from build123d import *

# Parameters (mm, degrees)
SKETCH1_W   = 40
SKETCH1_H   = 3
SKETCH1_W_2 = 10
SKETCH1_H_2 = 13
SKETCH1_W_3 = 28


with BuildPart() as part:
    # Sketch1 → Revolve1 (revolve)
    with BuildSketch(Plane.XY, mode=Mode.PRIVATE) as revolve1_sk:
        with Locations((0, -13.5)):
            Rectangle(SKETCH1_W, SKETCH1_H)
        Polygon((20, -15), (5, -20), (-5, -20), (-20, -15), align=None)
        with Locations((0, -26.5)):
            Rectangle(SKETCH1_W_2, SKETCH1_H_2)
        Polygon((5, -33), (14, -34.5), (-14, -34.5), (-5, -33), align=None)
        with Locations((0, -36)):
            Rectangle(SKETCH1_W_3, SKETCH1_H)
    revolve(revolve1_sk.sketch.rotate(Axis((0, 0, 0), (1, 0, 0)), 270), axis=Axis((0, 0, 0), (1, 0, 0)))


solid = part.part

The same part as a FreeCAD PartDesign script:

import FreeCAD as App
import Part
import Sketcher
Q = App.Units.Quantity

doc = App.newDocument("Part")
body = doc.addObject("PartDesign::Body", "Body")

sketch1 = doc.addObject("Sketcher::SketchObject", "Sketch")
body.addObject(sketch1)
sketch1.AttachmentSupport = (doc.XY_Plane, [""])
sketch1.MapMode = "FlatFace"
sketch1.addGeometry(Part.LineSegment(App.Vector(-20, -12, 0), App.Vector(-20, -15, 0)), False)
sketch1.addGeometry(Part.LineSegment(App.Vector(-20, -15, 0), App.Vector(-5, -20, 0)), False)
sketch1.addGeometry(Part.LineSegment(App.Vector(-5, -20, 0), App.Vector(-5, -33, 0)), False)
sketch1.addGeometry(Part.LineSegment(App.Vector(-5, -33, 0), App.Vector(-14, -34.5, 0)), False)
sketch1.addGeometry(Part.LineSegment(App.Vector(-14, -34.5, 0), App.Vector(-14, -37.5, 0)), False)
sketch1.addGeometry(Part.LineSegment(App.Vector(-14, -37.5, 0), App.Vector(14, -37.5, 0)), False)
sketch1.addGeometry(Part.LineSegment(App.Vector(14, -37.5, 0), App.Vector(14, -34.5, 0)), False)
sketch1.addGeometry(Part.LineSegment(App.Vector(14, -34.5, 0), App.Vector(5, -33, 0)), False)
sketch1.addGeometry(Part.LineSegment(App.Vector(5, -33, 0), App.Vector(5, -20, 0)), False)
sketch1.addGeometry(Part.LineSegment(App.Vector(5, -20, 0), App.Vector(20, -15, 0)), False)
sketch1.addGeometry(Part.LineSegment(App.Vector(20, -15, 0), App.Vector(20, -12, 0)), False)
sketch1.addGeometry(Part.LineSegment(App.Vector(20, -12, 0), App.Vector(-20, -12, 0)), False)
sketch1.addConstraint(Sketcher.Constraint("Coincident", 0, 2, 1, 1))
sketch1.addConstraint(Sketcher.Constraint("Coincident", 1, 2, 2, 1))
sketch1.addConstraint(Sketcher.Constraint("Coincident", 2, 2, 3, 1))
sketch1.addConstraint(Sketcher.Constraint("Coincident", 3, 2, 4, 1))
sketch1.addConstraint(Sketcher.Constraint("Coincident", 4, 2, 5, 1))
sketch1.addConstraint(Sketcher.Constraint("Coincident", 5, 2, 6, 1))
sketch1.addConstraint(Sketcher.Constraint("Coincident", 6, 2, 7, 1))
sketch1.addConstraint(Sketcher.Constraint("Coincident", 7, 2, 8, 1))
sketch1.addConstraint(Sketcher.Constraint("Coincident", 8, 2, 9, 1))
sketch1.addConstraint(Sketcher.Constraint("Coincident", 9, 2, 10, 1))
sketch1.addConstraint(Sketcher.Constraint("Coincident", 10, 2, 11, 1))
sketch1.addConstraint(Sketcher.Constraint("Coincident", 11, 2, 0, 1))
sketch1.addConstraint(Sketcher.Constraint("Vertical", 0))
sketch1.addConstraint(Sketcher.Constraint("Vertical", 2))
sketch1.addConstraint(Sketcher.Constraint("Vertical", 4))
sketch1.addConstraint(Sketcher.Constraint("Horizontal", 5))
sketch1.addConstraint(Sketcher.Constraint("Vertical", 6))
sketch1.addConstraint(Sketcher.Constraint("Vertical", 8))
sketch1.addConstraint(Sketcher.Constraint("Vertical", 10))
sketch1.addConstraint(Sketcher.Constraint("Horizontal", 11))
sketch1.addConstraint(Sketcher.Constraint("Symmetric", 3, 2, 6, 2, -2))
sketch1.addConstraint(Sketcher.Constraint("Symmetric", 2, 2, 7, 2, -2))
sketch1.addConstraint(Sketcher.Constraint("Symmetric", 0, 2, 9, 2, -2))
sketch1.addConstraint(Sketcher.Constraint("Horizontal", 1, 2, 8, 2))
sketch1.addConstraint(Sketcher.Constraint("Equal", 0, 4))
sketch1.addConstraint(Sketcher.Constraint("DistanceX", 5, 1, 5, 2, Q("28 mm")))
sketch1.addConstraint(Sketcher.Constraint("DistanceX", 11, 2, 11, 1, Q("40 mm")))
sketch1.addConstraint(Sketcher.Constraint("DistanceY", 0, 2, 0, 1, Q("3 mm")))
sketch1.addConstraint(Sketcher.Constraint("DistanceY", 2, 2, 2, 1, Q("13 mm")))
sketch1.addConstraint(Sketcher.Constraint("DistanceY", 0, 2, -1, 1, Q("15 mm")))
sketch1.addConstraint(Sketcher.Constraint("DistanceX", 1, 2, -1, 1, Q("5 mm")))
sketch1.addConstraint(Sketcher.Constraint("DistanceY", 1, 2, -1, 1, Q("20 mm")))
sketch1.addConstraint(Sketcher.Constraint("DistanceY", 3, 2, -1, 1, Q("34.5 mm")))
revolution = doc.addObject("PartDesign::Revolution", "Revolution")
body.addObject(revolution)
revolution.Profile = sketch1
revolution.ReferenceAxis = (sketch1, ["H_Axis"])
revolution.Angle = 360

doc.recompute()
